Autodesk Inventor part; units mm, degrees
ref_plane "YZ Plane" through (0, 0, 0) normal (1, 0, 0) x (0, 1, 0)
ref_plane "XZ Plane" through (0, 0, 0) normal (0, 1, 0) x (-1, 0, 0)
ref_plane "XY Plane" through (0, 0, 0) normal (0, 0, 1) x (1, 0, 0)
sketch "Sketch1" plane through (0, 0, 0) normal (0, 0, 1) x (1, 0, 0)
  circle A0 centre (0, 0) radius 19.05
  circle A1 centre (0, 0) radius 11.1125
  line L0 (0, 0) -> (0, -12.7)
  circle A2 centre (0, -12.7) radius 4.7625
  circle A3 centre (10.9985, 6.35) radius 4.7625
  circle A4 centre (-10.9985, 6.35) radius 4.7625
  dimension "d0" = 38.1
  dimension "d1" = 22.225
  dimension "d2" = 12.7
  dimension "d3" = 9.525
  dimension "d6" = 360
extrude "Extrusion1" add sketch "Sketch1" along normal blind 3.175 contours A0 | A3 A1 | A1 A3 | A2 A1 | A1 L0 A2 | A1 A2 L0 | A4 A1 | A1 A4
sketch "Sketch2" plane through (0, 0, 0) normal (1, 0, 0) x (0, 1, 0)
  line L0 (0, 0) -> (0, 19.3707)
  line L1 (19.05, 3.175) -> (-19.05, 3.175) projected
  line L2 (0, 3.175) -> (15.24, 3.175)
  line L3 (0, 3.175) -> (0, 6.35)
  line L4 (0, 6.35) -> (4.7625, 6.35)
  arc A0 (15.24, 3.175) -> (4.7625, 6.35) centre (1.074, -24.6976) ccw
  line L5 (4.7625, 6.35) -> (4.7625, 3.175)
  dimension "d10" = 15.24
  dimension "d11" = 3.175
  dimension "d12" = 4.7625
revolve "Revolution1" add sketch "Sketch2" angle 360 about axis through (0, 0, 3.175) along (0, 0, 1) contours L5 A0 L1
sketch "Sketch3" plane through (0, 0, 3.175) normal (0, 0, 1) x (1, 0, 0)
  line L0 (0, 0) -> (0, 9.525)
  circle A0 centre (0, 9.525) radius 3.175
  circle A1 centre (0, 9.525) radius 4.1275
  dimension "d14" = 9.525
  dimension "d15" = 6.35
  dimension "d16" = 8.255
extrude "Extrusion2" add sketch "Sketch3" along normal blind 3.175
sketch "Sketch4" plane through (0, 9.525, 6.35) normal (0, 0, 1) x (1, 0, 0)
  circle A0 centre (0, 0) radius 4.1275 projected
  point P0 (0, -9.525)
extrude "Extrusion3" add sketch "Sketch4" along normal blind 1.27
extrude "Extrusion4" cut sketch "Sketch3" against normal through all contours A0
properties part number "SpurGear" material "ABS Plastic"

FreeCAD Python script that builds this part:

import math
import FreeCAD as App
import Part
import Sketcher
from FreeCAD import Vector
Q = App.Units.Quantity

doc = App.newDocument("Part")
body = doc.addObject("PartDesign::Body", "Body")

# Sketch on XY plane
sketch1 = doc.addObject("Sketcher::SketchObject", "Sketch")
body.addObject(sketch1)
sketch1.AttachmentSupport = (doc.XY_Plane, [""])
sketch1.MapMode = "FlatFace"
sketch1.addGeometry(Part.Circle(Vector(0, 0, 0), Vector(0, 0, 1), 19.1), False)
sketch1.addGeometry(Part.ArcOfCircle(Part.Circle(Vector(0, 0, 0), Vector(0, 0, 1), 11.1), math.radians(-68), math.radians(8)), False)
sketch1.addGeometry(Part.ArcOfCircle(Part.Circle(Vector(0, -12.7, 0), Vector(0, 0, 1), 4.8), math.radians(30), math.radians(150)), False)
sketch1.addGeometry(Part.ArcOfCircle(Part.Circle(Vector(0, 0, 0), Vector(0, 0, 1), 11.1), math.radians(172), math.radians(248)), False)
sketch1.addGeometry(Part.ArcOfCircle(Part.Circle(Vector(-11, 6.3, 0), Vector(0, 0, 1), 4.8), math.radians(-90), math.radians(30)), False)
sketch1.addGeometry(Part.ArcOfCircle(Part.Circle(Vector(0, 0, 0), Vector(0, 0, 1), 11.1), math.radians(52), math.radians(128)), False)
sketch1.addGeometry(Part.ArcOfCircle(Part.Circle(Vector(11, 6.3, 0), Vector(0, 0, 1), 4.8), math.radians(150), math.radians(270)), False)
sketch1.addConstraint(Sketcher.Constraint("Coincident", 1, 1, 2, 1))
sketch1.addConstraint(Sketcher.Constraint("Coincident", 2, 2, 3, 2))
sketch1.addConstraint(Sketcher.Constraint("Coincident", 3, 1, 4, 1))
sketch1.addConstraint(Sketcher.Constraint("Coincident", 4, 2, 5, 2))
sketch1.addConstraint(Sketcher.Constraint("Coincident", 5, 1, 6, 1))
sketch1.addConstraint(Sketcher.Constraint("Coincident", 6, 2, 1, 2))
sketch1.addConstraint(Sketcher.Constraint("Coincident", 0, 3, -1, 1))
sketch1.addConstraint(Sketcher.Constraint("Coincident", 1, 3, -1, 1))
sketch1.addConstraint(Sketcher.Constraint("Coincident", 3, 3, -1, 1))
sketch1.addConstraint(Sketcher.Constraint("Coincident", 5, 3, -1, 1))
sketch1.addConstraint(Sketcher.Constraint("Equal", 1, 3))
sketch1.addConstraint(Sketcher.Constraint("Equal", 2, 4))
sketch1.addConstraint(Sketcher.Constraint("Equal", 3, 5))
sketch1.addConstraint(Sketcher.Constraint("Equal", 4, 6))
sketch1.addConstraint(Sketcher.Constraint("Symmetric", 4, 3, 6, 3, -2))
sketch1.addConstraint(Sketcher.Constraint("PointOnObject", 2, 3, -2))
sketch1.addConstraint(Sketcher.Constraint("Vertical", 4, 3, 3, 1))
sketch1.addConstraint(Sketcher.Constraint("Diameter", 0, Q("1.5 in")))
sketch1.addConstraint(Sketcher.Constraint("Radius", 1, Q("0.4375 in")))
sketch1.addConstraint(Sketcher.Constraint("Radius", 2, Q("0.1875 in")))
sketch1.addConstraint(Sketcher.Constraint("DistanceY", 2, 3, -1, 1, Q("0.5 in")))
sketch1.addConstraint(Sketcher.Constraint("DistanceY", -1, 1, 4, 3, Q("0.25 in")))
pad1 = doc.addObject("PartDesign::Pad", "Pad")
body.addObject(pad1)
pad1.Profile = sketch1
pad1.Length = Q("0.125 in")

# Sketch on YZ plane
sketch2 = doc.addObject("Sketcher::SketchObject", "Sketch001")
body.addObject(sketch2)
sketch2.AttachmentSupport = (doc.YZ_Plane, [""])
sketch2.MapMode = "FlatFace"
sketch2.addGeometry(Part.LineSegment(Vector(4.8, 6.3, 0), Vector(4.8, 3.2, 0)), False)
sketch2.addGeometry(Part.LineSegment(Vector(4.8, 3.2, 0), Vector(15.2, 3.2, 0)), False)
sketch2.addGeometry(Part.ArcOfCircle(Part.Circle(Vector(1.1, -24.7, 0), Vector(0, 0, 1), 31.3), math.radians(63), math.radians(83)), False)
sketch2.addConstraint(Sketcher.Constraint("Coincident", 0, 2, 1, 1))
sketch2.addConstraint(Sketcher.Constraint("Coincident", 1, 2, 2, 1))
sketch2.addConstraint(Sketcher.Constraint("Coincident", 2, 2, 0, 1))
sketch2.addConstraint(Sketcher.Constraint("Vertical", 0))
sketch2.addConstraint(Sketcher.Constraint("Horizontal", 1))
sketch2.addConstraint(Sketcher.Constraint("DistanceX", -1, 1, 1, 2, Q("0.6 in")))
sketch2.addConstraint(Sketcher.Constraint("DistanceY", 0, 2, 0, 1, Q("0.125 in")))
sketch2.addConstraint(Sketcher.Constraint("DistanceX", -1, 1, 0, 2, Q("0.1875 in")))
sketch2.addConstraint(Sketcher.Constraint("DistanceY", -1, 1, 0, 2, Q("0.125 in")))
sketch2.addConstraint(Sketcher.Constraint("Radius", 2, Q("31.266 mm")))
revolution = doc.addObject("PartDesign::Revolution", "Revolution")
body.addObject(revolution)
revolution.Profile = sketch2
revolution.ReferenceAxis = (sketch2, ["V_Axis"])
revolution.Angle = 360

# Sketch on XY plane
sketch3 = doc.addObject("Sketcher::SketchObject", "Sketch002")
body.addObject(sketch3)
sketch3.AttachmentSupport = (doc.XY_Plane, [""])
sketch3.MapMode = "FlatFace"
sketch3.AttachmentOffset = App.Placement(Vector(0, 0, 0.125 * 25.4), App.Rotation())
sketch3.addGeometry(Part.Circle(Vector(0, 9.5, 0), Vector(0, 0, 1), 4.1), False)
sketch3.addGeometry(Part.Circle(Vector(0, 9.5, 0), Vector(0, 0, 1), 3.2), False)
sketch3.addConstraint(Sketcher.Constraint("Coincident", 1, 3, 0, 3))
sketch3.addConstraint(Sketcher.Constraint("PointOnObject", 0, 3, -2))
sketch3.addConstraint(Sketcher.Constraint("Diameter", 1, Q("0.25 in")))
sketch3.addConstraint(Sketcher.Constraint("Diameter", 0, Q("0.325 in")))
sketch3.addConstraint(Sketcher.Constraint("DistanceY", -1, 1, 0, 3, Q("0.375 in")))
pad2 = doc.addObject("PartDesign::Pad", "Pad001")
body.addObject(pad2)
pad2.Profile = sketch3
pad2.Length = Q("0.125 in")

# Sketch on XY plane
sketch4 = doc.addObject("Sketcher::SketchObject", "Sketch003")
body.addObject(sketch4)
sketch4.AttachmentSupport = (doc.XY_Plane, [""])
sketch4.MapMode = "FlatFace"
sketch4.AttachmentOffset = App.Placement(Vector(0, 0, 0.25 * 25.4), App.Rotation())
sketch4.addGeometry(Part.Circle(Vector(0, 9.5, 0), Vector(0, 0, 1), 4.1), False)
sketch4.addConstraint(Sketcher.Constraint("PointOnObject", 0, 3, -2))
sketch4.addConstraint(Sketcher.Constraint("Diameter", 0, Q("0.325 in")))
sketch4.addConstraint(Sketcher.Constraint("DistanceY", -1, 1, 0, 3, Q("0.375 in")))
pad3 = doc.addObject("PartDesign::Pad", "Pad002")
body.addObject(pad3)
pad3.Profile = sketch4
pad3.Length = Q("0.05 in")

# Sketch on XY plane
sketch5 = doc.addObject("Sketcher::SketchObject", "Sketch004")
body.addObject(sketch5)
sketch5.AttachmentSupport = (doc.XY_Plane, [""])
sketch5.MapMode = "FlatFace"
sketch5.AttachmentOffset = App.Placement(Vector(0, 0, 0.125 * 25.4), App.Rotation())
sketch5.addGeometry(Part.Circle(Vector(0, 9.5, 0), Vector(0, 0, 1), 3.2), False)
sketch5.addConstraint(Sketcher.Constraint("PointOnObject", 0, 3, -2))
sketch5.addConstraint(Sketcher.Constraint("Diameter", 0, Q("0.25 in")))
sketch5.addConstraint(Sketcher.Constraint("DistanceY", -1, 1, 0, 3, Q("0.375 in")))
pocket1 = doc.addObject("PartDesign::Pocket", "Pocket")
body.addObject(pocket1)
pocket1.Profile = sketch5
pocket1.Type = "ThroughAll"

doc.recompute()
